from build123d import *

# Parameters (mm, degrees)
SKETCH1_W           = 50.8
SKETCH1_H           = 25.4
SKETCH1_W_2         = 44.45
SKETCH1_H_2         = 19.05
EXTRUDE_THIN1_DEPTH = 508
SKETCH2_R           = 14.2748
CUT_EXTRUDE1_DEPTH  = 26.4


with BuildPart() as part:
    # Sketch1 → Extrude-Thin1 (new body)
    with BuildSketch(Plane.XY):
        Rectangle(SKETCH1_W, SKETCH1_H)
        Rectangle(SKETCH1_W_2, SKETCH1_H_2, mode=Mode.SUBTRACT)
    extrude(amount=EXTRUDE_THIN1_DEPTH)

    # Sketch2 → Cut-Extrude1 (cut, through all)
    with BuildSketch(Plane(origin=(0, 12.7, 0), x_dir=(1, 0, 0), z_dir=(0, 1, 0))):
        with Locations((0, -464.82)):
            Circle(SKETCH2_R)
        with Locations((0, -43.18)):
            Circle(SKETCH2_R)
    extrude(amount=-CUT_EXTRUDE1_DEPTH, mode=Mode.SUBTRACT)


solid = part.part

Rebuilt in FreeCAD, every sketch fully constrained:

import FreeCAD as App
import Part
import Sketcher
Q = App.Units.Quantity


def add_polygon(sketch, points):
    """Adds a closed chain of lines whose ends are joined by coincident constraints."""
    first, n = sketch.GeometryCount, len(points)
    for a, b in zip(points, points[1:] + points[:1]):
        sketch.addGeometry(Part.LineSegment(App.Vector(*a, 0), App.Vector(*b, 0)), False)
    for i in range(n):
        sketch.addConstraint(Sketcher.Constraint("Coincident", first + i, 2, first + (i + 1) % n, 1))

doc = App.newDocument("Part")
body = doc.addObject("PartDesign::Body", "Body")

# Sketch on XY plane
sketch1 = body.newObject("Sketcher::SketchObject", "Sketch")
sketch1.AttachmentSupport = (doc.getObject("XY_Plane"), [""])
sketch1.MapMode = "FlatFace"
add_polygon(sketch1, [(-25.4, 12.7), (-25.4, -12.7), (25.4, -12.7), (25.4, 12.7)])  # lines 0-3
add_polygon(sketch1, [(22.225, -9.525), (-22.225, -9.525), (-22.225, 9.525), (22.225, 9.525)])  # lines 4-7
sketch1.addConstraint(Sketcher.Constraint("Vertical", 0))
sketch1.addConstraint(Sketcher.Constraint("Horizontal", 1))
sketch1.addConstraint(Sketcher.Constraint("Vertical", 2))
sketch1.addConstraint(Sketcher.Constraint("Horizontal", 3))
sketch1.addConstraint(Sketcher.Constraint("Horizontal", 4))
sketch1.addConstraint(Sketcher.Constraint("Vertical", 5))
sketch1.addConstraint(Sketcher.Constraint("Horizontal", 6))
sketch1.addConstraint(Sketcher.Constraint("Vertical", 7))
sketch1.addConstraint(Sketcher.Constraint("Symmetric", 0, 2, 2, 2, -1, 1))
sketch1.addConstraint(Sketcher.Constraint("Symmetric", 4, 2, 6, 2, -1, 1))
sketch1.addConstraint(Sketcher.Constraint("DistanceX", 1, 1, 1, 2, Q("2 in")))
sketch1.addConstraint(Sketcher.Constraint("DistanceY", 0, 2, 0, 1, Q("1 in")))
sketch1.addConstraint(Sketcher.Constraint("DistanceX", 4, 2, 4, 1, Q("1.75 in")))
sketch1.addConstraint(Sketcher.Constraint("DistanceY", 5, 1, 5, 2, Q("0.75 in")))
pad1 = body.newObject("PartDesign::Pad", "Pad")
pad1.Profile = sketch1
pad1.Length = Q("20 in")

# Sketch on XZ plane
sketch2 = body.newObject("Sketcher::SketchObject", "Sketch001")
sketch2.AttachmentSupport = (doc.getObject("XZ_Plane"), [""])
sketch2.MapMode = "FlatFace"
sketch2.AttachmentOffset = App.Placement(App.Vector(0, 0, -0.5 * 25.4), App.Rotation())
sketch2.addGeometry(Part.Circle(App.Vector(0, 464.82, 0), App.Vector(0, 0, 1), 14.2748), False)
sketch2.addGeometry(Part.Circle(App.Vector(0, 43.18, 0), App.Vector(0, 0, 1), 14.2748), False)
sketch2.addConstraint(Sketcher.Constraint("Equal", 0, 1))
sketch2.addConstraint(Sketcher.Constraint("PointOnObject", 0, 3, -2))
sketch2.addConstraint(Sketcher.Constraint("PointOnObject", 1, 3, -2))
sketch2.addConstraint(Sketcher.Constraint("Diameter", 0, Q("1.124 in")))
sketch2.addConstraint(Sketcher.Constraint("DistanceY", -1, 1, 0, 3, Q("18.3 in")))
sketch2.addConstraint(Sketcher.Constraint("DistanceY", -1, 1, 1, 3, Q("1.7 in")))
pocket1 = body.newObject("PartDesign::Pocket", "Pocket")
pocket1.Profile = sketch2
pocket1.Type = "ThroughAll"
pocket1.Reversed = True

doc.recompute()
